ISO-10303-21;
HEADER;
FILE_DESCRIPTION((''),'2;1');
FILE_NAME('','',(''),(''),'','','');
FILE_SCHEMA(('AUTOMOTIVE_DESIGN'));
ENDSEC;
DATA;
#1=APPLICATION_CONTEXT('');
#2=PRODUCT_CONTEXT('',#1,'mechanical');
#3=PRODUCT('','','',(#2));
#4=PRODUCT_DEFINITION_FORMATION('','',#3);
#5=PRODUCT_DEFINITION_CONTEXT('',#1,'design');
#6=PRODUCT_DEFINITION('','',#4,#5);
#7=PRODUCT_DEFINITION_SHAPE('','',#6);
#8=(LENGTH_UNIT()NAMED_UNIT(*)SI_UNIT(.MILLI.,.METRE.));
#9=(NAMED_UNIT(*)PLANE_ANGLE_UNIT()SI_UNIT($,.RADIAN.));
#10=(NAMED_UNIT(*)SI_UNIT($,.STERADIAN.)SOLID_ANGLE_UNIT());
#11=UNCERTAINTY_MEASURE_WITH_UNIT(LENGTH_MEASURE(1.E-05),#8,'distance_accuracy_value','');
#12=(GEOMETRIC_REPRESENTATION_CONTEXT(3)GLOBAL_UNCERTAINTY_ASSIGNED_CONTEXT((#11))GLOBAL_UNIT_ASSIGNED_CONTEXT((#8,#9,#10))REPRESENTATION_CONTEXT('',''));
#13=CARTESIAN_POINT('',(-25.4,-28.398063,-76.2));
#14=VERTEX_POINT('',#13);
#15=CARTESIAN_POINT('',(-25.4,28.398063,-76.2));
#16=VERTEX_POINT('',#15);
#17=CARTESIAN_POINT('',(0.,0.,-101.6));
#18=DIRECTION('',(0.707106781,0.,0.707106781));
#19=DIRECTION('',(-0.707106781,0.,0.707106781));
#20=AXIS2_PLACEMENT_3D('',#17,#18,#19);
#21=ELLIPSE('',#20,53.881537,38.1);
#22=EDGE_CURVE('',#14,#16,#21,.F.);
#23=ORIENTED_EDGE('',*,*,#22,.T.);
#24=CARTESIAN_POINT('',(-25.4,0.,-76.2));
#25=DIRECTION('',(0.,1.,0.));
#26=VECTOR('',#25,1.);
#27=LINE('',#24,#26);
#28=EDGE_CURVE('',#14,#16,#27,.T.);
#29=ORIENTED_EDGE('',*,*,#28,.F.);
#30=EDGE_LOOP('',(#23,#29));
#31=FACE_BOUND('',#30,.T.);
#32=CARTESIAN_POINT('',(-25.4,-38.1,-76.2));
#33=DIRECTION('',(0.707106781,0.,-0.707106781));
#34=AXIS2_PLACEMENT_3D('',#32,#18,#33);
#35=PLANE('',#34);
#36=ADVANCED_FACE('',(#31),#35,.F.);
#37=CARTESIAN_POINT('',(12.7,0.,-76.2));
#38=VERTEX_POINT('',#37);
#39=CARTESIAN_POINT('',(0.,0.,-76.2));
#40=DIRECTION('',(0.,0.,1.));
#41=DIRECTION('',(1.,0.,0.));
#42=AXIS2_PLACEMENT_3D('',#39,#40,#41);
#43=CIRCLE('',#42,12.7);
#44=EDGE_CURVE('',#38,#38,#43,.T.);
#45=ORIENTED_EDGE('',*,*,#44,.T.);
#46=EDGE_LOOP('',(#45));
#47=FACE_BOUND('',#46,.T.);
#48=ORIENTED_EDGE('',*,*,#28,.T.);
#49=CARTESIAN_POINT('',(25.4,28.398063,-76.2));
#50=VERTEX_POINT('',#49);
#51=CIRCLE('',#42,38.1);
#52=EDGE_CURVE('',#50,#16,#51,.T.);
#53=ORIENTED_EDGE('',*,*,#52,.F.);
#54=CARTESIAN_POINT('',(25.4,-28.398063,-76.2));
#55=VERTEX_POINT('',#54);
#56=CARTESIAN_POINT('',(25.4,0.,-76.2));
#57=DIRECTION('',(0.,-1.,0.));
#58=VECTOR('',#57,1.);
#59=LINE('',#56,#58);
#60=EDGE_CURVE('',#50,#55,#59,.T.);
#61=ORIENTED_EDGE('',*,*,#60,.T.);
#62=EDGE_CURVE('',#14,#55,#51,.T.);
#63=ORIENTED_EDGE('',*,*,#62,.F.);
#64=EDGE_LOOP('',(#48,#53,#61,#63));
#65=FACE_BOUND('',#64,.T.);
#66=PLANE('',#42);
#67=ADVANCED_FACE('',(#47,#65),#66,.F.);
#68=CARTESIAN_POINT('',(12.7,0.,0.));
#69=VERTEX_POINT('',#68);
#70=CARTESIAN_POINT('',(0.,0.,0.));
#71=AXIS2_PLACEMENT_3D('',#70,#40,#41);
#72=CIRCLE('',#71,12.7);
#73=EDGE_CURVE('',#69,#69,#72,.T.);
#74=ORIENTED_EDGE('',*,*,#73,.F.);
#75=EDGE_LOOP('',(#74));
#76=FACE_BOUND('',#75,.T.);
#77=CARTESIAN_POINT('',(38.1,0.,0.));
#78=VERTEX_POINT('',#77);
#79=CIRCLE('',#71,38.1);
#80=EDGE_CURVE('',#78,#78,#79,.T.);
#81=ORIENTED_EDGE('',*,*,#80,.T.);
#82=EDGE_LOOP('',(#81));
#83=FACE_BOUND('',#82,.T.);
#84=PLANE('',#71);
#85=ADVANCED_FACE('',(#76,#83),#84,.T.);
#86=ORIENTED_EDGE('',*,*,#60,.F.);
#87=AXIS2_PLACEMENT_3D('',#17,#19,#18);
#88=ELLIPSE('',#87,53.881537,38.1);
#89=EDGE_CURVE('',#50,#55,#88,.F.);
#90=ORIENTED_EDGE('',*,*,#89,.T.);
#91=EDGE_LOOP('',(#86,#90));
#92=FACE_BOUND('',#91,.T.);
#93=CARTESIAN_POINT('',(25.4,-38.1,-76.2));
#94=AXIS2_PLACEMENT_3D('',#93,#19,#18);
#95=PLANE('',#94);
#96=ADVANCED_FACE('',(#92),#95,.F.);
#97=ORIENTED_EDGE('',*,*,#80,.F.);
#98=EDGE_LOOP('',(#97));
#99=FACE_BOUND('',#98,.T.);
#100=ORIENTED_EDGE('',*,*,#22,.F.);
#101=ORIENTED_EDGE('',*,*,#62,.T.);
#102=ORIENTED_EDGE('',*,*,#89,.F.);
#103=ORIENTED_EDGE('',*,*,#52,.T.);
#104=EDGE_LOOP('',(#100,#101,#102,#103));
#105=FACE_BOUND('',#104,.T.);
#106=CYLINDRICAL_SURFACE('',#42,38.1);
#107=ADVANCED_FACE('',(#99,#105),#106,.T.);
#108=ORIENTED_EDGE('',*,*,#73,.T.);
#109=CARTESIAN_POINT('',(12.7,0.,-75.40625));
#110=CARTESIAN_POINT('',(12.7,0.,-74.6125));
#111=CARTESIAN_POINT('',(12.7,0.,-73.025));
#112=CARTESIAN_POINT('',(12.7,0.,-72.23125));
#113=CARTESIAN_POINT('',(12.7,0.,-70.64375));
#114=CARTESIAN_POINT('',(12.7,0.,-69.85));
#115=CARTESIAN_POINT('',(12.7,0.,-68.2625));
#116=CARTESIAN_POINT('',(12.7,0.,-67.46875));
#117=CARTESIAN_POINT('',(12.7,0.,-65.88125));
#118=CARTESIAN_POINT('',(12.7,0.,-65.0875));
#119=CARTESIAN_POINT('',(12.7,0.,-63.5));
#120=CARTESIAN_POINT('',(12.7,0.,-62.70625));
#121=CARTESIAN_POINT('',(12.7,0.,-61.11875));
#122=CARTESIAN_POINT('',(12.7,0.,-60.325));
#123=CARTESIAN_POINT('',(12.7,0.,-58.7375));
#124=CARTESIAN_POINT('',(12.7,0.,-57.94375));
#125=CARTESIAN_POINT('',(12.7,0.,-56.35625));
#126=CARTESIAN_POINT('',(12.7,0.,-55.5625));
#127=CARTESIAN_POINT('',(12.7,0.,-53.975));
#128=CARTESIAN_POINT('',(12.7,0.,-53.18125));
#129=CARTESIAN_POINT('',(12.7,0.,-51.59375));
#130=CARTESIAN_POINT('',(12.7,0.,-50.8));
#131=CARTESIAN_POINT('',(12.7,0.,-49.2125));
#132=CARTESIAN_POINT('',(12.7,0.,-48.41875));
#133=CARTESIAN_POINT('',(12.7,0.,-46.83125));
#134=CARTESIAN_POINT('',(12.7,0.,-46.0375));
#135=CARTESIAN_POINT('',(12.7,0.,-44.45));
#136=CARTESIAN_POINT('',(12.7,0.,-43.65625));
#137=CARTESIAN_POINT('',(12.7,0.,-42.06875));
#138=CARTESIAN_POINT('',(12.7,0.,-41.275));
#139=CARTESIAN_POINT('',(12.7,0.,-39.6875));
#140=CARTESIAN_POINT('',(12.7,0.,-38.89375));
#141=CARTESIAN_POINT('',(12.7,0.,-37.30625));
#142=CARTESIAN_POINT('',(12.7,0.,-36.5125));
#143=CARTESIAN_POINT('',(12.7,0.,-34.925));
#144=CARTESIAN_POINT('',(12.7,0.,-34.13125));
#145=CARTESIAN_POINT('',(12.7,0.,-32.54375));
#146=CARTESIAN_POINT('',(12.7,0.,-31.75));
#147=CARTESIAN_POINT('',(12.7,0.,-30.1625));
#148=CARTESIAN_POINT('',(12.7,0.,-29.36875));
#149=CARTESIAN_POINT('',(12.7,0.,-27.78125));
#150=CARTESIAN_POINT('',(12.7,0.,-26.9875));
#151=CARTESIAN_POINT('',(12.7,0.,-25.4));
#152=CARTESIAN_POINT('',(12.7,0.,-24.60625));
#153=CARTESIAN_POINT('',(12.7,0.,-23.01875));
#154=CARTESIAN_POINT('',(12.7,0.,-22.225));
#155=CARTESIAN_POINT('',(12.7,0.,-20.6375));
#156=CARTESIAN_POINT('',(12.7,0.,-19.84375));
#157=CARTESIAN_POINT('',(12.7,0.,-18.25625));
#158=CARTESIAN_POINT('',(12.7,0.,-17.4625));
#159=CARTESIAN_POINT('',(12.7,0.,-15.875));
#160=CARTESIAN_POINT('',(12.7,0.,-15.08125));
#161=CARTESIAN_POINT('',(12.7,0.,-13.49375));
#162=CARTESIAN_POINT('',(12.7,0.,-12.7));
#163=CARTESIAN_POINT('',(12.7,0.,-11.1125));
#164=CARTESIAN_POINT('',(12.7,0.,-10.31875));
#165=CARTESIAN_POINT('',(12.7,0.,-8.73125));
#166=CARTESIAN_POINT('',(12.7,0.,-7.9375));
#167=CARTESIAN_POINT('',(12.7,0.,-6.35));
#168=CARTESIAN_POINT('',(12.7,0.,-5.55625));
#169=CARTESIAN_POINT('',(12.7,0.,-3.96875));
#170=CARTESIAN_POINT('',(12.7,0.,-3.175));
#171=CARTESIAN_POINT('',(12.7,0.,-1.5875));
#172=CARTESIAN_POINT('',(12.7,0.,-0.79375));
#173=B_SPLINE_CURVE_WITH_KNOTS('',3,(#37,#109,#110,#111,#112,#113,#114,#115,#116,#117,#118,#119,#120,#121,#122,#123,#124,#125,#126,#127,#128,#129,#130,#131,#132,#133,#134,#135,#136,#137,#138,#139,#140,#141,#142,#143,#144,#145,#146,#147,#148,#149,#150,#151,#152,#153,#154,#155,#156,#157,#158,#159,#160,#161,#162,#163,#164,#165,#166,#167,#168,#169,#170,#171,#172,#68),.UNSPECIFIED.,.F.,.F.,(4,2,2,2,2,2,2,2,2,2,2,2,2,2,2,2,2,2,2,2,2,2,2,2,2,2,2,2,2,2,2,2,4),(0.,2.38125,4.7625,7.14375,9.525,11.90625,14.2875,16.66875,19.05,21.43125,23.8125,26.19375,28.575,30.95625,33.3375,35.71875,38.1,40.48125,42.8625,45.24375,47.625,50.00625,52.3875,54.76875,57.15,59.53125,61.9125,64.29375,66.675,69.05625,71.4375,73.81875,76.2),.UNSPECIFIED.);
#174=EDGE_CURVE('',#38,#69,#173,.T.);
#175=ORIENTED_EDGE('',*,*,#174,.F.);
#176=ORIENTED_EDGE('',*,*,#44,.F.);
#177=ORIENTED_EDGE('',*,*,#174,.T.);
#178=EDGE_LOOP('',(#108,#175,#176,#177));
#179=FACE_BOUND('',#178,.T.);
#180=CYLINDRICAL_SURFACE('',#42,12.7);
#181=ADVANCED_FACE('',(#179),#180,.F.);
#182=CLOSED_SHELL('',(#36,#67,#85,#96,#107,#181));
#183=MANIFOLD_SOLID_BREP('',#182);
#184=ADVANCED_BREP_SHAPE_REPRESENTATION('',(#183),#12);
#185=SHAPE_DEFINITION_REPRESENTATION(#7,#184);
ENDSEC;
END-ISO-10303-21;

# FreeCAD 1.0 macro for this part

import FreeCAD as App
import Part
import Sketcher
Q = App.Units.Quantity

doc = App.newDocument("Part")
body = doc.addObject("PartDesign::Body", "Body")

# Sketch on XY plane
sketch1 = doc.addObject("Sketcher::SketchObject", "Sketch")
body.addObject(sketch1)
sketch1.AttachmentSupport = (doc.XY_Plane, [""])
sketch1.MapMode = "FlatFace"
sketch1.addGeometry([
    Part.Circle(App.Vector(0, 0, 0), App.Vector(0, 0, 1), 38),
    Part.Circle(App.Vector(0, 0, 0), App.Vector(0, 0, 1), 13),
], False)
sketch1.addConstraint([
    Sketcher.Constraint("Coincident", 0, 3, -1, 1),
    Sketcher.Constraint("Coincident", 1, 3, -1, 1),
    Sketcher.Constraint("Diameter", 0, Q("3 in")),
    Sketcher.Constraint("Diameter", 1, Q("1 in")),
])
pad1 = doc.addObject("PartDesign::Pad", "Pad")
body.addObject(pad1)
pad1.Profile = sketch1
pad1.Length = Q("3 in")
pad1.Reversed = True

# Sketch on XZ plane
sketch2 = doc.addObject("Sketcher::SketchObject", "Sketch001")
body.addObject(sketch2)
sketch2.AttachmentSupport = (doc.XZ_Plane, [""])
sketch2.MapMode = "FlatFace"
sketch2.addGeometry([
    Part.LineSegment(App.Vector(-38, -64, 0), App.Vector(-25, -76, 0)),  # 0
    Part.LineSegment(App.Vector(-25, -76, 0), App.Vector(-38, -76, 0)),  # 1
    Part.LineSegment(App.Vector(-38, -76, 0), App.Vector(-38, -64, 0)),  # 2
    Part.LineSegment(App.Vector(38, -76, 0), App.Vector(25, -76, 0)),  # 3
    Part.LineSegment(App.Vector(25, -76, 0), App.Vector(38, -64, 0)),  # 4
    Part.LineSegment(App.Vector(38, -64, 0), App.Vector(38, -76, 0)),  # 5
], False)
sketch2.addConstraint([
    Sketcher.Constraint("Coincident", 0, 2, 1, 1),
    Sketcher.Constraint("Coincident", 1, 2, 2, 1),
    Sketcher.Constraint("Coincident", 2, 2, 0, 1),
    Sketcher.Constraint("Coincident", 3, 2, 4, 1),
    Sketcher.Constraint("Coincident", 4, 2, 5, 1),
    Sketcher.Constraint("Coincident", 5, 2, 3, 1),
    Sketcher.Constraint("Horizontal", 1),
    Sketcher.Constraint("Vertical", 2),
    Sketcher.Constraint("Horizontal", 3),
    Sketcher.Constraint("Vertical", 5),
    Sketcher.Constraint("Symmetric", 0, 2, 3, 2, -2),
    Sketcher.Constraint("Symmetric", 2, 2, 4, 2, -2),
    Sketcher.Constraint("Perpendicular", 0, 4),
    Sketcher.Constraint("DistanceX", 1, 2, 1, 1, Q("0.5 in")),
    Sketcher.Constraint("DistanceX", 0, 2, -1, 1, Q("1 in")),
    Sketcher.Constraint("DistanceY", 0, 2, -1, 1, Q("3 in")),
])
pocket1 = doc.addObject("PartDesign::Pocket", "Pocket")
body.addObject(pocket1)
pocket1.Profile = sketch2
pocket1.Type = "ThroughAll"
pocket1.Midplane = True

doc.recompute()
